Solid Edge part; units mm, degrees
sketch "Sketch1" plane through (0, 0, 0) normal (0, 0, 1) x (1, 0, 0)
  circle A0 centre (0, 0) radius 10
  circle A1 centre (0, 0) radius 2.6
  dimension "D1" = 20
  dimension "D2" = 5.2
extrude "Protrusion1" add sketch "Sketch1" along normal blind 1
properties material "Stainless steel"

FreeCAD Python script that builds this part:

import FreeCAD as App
import Part
import Sketcher

V = App.Vector
Q = App.Units.Quantity

doc = App.newDocument("Part")
body = doc.addObject("PartDesign::Body", "Body")

# Sketch on XY plane
sketch1 = body.newObject("Sketcher::SketchObject", "Sketch")
sketch1.AttachmentSupport = (doc.getObject("XY_Plane"), [""])
sketch1.MapMode = "FlatFace"
sketch1.addGeometry(Part.Circle(V(0, 0, 0), V(0, 0, 1), 10), False)
sketch1.addGeometry(Part.Circle(V(0, 0, 0), V(0, 0, 1), 2.6), False)
sketch1.addConstraint(Sketcher.Constraint("Coincident", 0, 3, -1, 1))
sketch1.addConstraint(Sketcher.Constraint("Coincident", 1, 3, -1, 1))
sketch1.addConstraint(Sketcher.Constraint("Diameter", 0, Q("20 mm")))
sketch1.addConstraint(Sketcher.Constraint("Diameter", 1, Q("5.2 mm")))
pad1 = body.newObject("PartDesign::Pad", "Pad")
pad1.Profile = sketch1
pad1.Length = 1

doc.recompute()
